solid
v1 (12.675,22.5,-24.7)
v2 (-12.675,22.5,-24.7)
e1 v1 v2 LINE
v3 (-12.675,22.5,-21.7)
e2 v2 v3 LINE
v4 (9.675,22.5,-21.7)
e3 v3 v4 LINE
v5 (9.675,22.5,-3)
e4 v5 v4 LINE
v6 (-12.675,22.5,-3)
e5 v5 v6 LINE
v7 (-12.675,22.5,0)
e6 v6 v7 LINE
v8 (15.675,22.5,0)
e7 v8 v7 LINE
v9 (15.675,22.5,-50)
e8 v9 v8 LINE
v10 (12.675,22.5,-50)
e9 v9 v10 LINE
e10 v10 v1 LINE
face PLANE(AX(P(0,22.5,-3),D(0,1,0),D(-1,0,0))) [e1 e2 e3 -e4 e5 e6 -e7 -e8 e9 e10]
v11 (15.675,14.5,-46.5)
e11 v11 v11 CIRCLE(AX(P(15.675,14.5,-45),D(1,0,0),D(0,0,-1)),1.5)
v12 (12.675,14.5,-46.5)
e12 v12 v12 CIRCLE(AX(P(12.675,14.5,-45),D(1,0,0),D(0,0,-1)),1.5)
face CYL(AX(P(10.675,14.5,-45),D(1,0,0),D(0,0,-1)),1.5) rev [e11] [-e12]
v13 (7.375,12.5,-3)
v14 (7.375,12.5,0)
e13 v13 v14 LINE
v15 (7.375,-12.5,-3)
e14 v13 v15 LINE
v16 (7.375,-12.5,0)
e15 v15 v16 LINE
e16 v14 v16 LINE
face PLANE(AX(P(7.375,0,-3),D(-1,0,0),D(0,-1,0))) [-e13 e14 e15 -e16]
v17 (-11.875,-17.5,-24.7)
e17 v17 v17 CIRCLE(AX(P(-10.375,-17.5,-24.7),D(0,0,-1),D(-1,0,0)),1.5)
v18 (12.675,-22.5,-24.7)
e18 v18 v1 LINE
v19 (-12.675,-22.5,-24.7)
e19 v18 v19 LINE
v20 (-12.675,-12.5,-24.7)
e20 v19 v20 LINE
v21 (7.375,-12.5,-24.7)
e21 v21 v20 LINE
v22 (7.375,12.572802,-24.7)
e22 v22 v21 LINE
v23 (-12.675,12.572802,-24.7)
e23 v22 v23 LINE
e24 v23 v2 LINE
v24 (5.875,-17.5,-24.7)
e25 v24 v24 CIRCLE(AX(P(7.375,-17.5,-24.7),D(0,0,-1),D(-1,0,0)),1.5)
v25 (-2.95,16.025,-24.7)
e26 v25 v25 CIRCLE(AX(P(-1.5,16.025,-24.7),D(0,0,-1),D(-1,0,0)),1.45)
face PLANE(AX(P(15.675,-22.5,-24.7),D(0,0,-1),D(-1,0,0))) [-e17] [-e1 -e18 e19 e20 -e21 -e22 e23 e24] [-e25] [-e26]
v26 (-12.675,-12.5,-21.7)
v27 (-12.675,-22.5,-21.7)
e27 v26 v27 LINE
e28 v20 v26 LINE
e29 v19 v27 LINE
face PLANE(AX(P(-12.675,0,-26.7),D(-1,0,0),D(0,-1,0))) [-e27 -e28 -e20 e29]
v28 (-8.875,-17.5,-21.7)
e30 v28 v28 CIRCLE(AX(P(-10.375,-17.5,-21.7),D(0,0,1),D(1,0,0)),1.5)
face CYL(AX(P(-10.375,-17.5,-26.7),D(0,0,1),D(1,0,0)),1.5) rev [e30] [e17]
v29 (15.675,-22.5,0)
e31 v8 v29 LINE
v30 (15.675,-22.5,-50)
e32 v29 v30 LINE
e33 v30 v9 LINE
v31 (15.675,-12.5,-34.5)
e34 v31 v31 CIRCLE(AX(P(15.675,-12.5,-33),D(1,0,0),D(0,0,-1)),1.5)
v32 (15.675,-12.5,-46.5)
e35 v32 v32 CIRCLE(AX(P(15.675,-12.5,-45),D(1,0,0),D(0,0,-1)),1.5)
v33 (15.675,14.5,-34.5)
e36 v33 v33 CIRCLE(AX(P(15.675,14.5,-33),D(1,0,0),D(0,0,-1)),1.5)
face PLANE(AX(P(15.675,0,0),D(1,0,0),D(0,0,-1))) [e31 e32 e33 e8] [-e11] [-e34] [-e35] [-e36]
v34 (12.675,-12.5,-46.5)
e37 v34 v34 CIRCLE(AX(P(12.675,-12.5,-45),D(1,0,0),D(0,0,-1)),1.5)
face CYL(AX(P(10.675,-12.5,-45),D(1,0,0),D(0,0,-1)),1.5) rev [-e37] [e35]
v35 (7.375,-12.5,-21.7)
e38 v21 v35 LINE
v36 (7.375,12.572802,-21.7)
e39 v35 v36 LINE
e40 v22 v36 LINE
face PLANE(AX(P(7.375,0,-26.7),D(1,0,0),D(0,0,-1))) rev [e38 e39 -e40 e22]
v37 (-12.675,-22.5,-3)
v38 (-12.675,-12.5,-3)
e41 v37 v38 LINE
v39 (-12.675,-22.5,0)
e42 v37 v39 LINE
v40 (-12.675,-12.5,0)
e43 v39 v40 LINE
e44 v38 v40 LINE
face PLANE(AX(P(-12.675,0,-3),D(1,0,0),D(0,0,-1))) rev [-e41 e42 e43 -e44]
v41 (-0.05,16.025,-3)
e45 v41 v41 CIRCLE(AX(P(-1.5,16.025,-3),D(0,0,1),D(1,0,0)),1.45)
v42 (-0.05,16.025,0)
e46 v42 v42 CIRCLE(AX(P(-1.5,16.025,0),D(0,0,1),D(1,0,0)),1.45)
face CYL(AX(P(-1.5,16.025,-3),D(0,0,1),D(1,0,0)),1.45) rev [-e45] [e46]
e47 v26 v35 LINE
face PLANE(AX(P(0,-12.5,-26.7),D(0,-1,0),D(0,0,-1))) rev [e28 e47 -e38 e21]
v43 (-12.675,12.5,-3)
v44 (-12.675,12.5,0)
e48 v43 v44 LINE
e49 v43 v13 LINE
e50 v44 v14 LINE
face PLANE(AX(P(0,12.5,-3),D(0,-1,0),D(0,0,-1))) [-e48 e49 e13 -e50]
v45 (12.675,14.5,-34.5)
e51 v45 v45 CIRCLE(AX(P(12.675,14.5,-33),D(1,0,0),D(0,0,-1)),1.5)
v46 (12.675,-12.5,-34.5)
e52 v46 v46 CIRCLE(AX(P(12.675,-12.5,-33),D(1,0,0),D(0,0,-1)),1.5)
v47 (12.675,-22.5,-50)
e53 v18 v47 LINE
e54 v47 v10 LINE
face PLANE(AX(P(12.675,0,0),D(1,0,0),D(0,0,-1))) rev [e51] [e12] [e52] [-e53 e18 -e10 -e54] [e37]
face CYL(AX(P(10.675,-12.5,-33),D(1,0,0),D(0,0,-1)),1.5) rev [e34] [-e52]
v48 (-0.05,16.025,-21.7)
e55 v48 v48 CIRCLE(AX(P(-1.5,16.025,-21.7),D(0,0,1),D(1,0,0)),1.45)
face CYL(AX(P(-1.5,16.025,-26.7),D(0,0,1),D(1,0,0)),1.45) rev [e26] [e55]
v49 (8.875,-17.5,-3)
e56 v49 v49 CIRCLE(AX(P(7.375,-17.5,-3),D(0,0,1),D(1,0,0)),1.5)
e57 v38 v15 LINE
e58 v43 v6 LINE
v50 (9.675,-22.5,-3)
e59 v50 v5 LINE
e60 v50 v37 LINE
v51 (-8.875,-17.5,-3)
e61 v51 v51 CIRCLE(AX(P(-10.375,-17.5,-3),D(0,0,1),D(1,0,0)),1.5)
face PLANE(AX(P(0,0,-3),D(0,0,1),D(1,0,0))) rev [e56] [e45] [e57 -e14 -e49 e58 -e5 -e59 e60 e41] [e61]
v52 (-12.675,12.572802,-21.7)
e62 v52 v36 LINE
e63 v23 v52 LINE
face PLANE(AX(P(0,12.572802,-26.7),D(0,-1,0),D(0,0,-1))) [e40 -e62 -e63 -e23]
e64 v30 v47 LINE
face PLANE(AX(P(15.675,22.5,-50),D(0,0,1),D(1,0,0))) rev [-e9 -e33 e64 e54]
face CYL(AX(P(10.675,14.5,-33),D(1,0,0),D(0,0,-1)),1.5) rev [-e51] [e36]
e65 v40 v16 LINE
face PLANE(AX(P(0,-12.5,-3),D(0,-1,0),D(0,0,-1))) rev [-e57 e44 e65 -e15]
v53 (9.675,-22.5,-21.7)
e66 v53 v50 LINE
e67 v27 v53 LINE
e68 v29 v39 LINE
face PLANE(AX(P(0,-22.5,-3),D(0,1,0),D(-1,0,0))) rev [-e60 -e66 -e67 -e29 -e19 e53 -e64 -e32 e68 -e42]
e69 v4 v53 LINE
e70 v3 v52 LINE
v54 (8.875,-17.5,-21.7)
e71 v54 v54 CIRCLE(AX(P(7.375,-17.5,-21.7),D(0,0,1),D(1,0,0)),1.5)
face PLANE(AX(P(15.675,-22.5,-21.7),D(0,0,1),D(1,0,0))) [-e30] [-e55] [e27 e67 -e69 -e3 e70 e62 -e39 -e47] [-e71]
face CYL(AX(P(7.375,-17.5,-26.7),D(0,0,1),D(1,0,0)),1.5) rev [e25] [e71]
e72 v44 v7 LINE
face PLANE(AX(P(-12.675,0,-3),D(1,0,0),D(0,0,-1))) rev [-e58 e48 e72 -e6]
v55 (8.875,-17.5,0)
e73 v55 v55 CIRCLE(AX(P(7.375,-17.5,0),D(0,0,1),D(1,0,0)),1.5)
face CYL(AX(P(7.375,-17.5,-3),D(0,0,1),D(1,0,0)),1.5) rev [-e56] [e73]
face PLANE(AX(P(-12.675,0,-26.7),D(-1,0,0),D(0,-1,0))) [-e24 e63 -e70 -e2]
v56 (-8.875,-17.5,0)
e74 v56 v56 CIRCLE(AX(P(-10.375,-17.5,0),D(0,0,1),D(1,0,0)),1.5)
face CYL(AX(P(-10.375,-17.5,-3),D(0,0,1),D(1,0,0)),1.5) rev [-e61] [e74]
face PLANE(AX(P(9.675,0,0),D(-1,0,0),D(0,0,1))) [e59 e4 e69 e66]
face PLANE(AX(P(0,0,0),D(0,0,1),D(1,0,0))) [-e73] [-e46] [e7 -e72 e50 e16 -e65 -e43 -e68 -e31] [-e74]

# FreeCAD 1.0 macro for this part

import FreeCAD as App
import Part
import Sketcher

doc = App.newDocument("Part")
body = doc.addObject("PartDesign::Body", "Body")

# Sketch on XY plane
sketch1 = body.newObject("Sketcher::SketchObject", "Sketch")
sketch1.AttachmentSupport = (doc.getObject("XY_Plane"), [""])
sketch1.MapMode = "FlatFace"
sketch1.addGeometry([
    Part.LineSegment(App.Vector(7.4, 12.5, 0), App.Vector(7.4, -12.5, 0)),  # 0
    Part.LineSegment(App.Vector(7.4, -12.5, 0), App.Vector(-12.7, -12.5, 0)),  # 1
    Part.LineSegment(App.Vector(-12.7, -12.5, 0), App.Vector(-12.7, -22.5, 0)),  # 2
    Part.LineSegment(App.Vector(-12.7, -22.5, 0), App.Vector(12.7, -22.5, 0)),  # 3
    Part.LineSegment(App.Vector(12.7, -22.5, 0), App.Vector(12.7, 22.5, 0)),  # 4
    Part.LineSegment(App.Vector(12.7, 22.5, 0), App.Vector(-12.7, 22.5, 0)),  # 5
    Part.LineSegment(App.Vector(-12.7, 22.5, 0), App.Vector(-12.7, 12.5, 0)),  # 6
    Part.LineSegment(App.Vector(-12.7, 12.5, 0), App.Vector(7.4, 12.5, 0)),  # 7
    Part.Circle(App.Vector(7.4, -17.5, 0), App.Vector(0, 0, 1), 1.5),  # 8
    Part.Circle(App.Vector(-10.4, -17.5, 0), App.Vector(0, 0, 1), 1.5),  # 9
    Part.Circle(App.Vector(-1.5, 16, 0), App.Vector(0, 0, 1), 1.4),  # 10
], False)
sketch1.addConstraint([
    Sketcher.Constraint("Coincident", 0, 2, 1, 1),
    Sketcher.Constraint("Coincident", 1, 2, 2, 1),
    Sketcher.Constraint("Coincident", 2, 2, 3, 1),
    Sketcher.Constraint("Coincident", 3, 2, 4, 1),
    Sketcher.Constraint("Coincident", 4, 2, 5, 1),
    Sketcher.Constraint("Coincident", 5, 2, 6, 1),
    Sketcher.Constraint("Coincident", 6, 2, 7, 1),
    Sketcher.Constraint("Coincident", 7, 2, 0, 1),
    Sketcher.Constraint("Vertical", 0),
    Sketcher.Constraint("Horizontal", 1),
    Sketcher.Constraint("Vertical", 2),
    Sketcher.Constraint("Horizontal", 3),
    Sketcher.Constraint("Vertical", 4),
    Sketcher.Constraint("Horizontal", 5),
    Sketcher.Constraint("Vertical", 6),
    Sketcher.Constraint("Horizontal", 7),
    Sketcher.Constraint("Equal", 8, 9),
    Sketcher.Constraint("Symmetric", 2, 2, 4, 2, -1, 1),
    Sketcher.Constraint("Symmetric", 1, 2, 6, 2, -1),
    Sketcher.Constraint("Horizontal", 8, 3, 9, 3),
    Sketcher.Constraint("Vertical", 8, 3, 0, 2),
    Sketcher.Constraint("Diameter", 8, 3.0),
    Sketcher.Constraint("Diameter", 10, 2.9),
    Sketcher.Constraint("DistanceY", 0, 2, 0, 1, 25.0),
    Sketcher.Constraint("DistanceY", 2, 2, 2, 1, 10.0),
    Sketcher.Constraint("DistanceY", 8, 3, 0, 2, 5.0),
    Sketcher.Constraint("DistanceX", 1, 2, 1, 1, 20.05),
    Sketcher.Constraint("DistanceX", 3, 1, 3, 2, 25.35),
    Sketcher.Constraint("DistanceX", 10, 3, -1, 1, 1.5),
    Sketcher.Constraint("DistanceX", 1, 2, 9, 3, 2.3),
    Sketcher.Constraint("DistanceY", -1, 1, 10, 3, 16.025),
])
pad1 = body.newObject("PartDesign::Pad", "Pad")
pad1.Profile = sketch1
pad1.Length = 3
pad1.Reversed = True

# Sketch on YZ plane
sketch2 = body.newObject("Sketcher::SketchObject", "Sketch001")
sketch2.AttachmentSupport = (doc.getObject("YZ_Plane"), [""])
sketch2.MapMode = "FlatFace"
sketch2.AttachmentOffset = App.Placement(App.Vector(0, 0, 12.675), App.Rotation())
sketch2.addGeometry([
    Part.LineSegment(App.Vector(22, 0, 0), App.Vector(-22, 0, 0)),
    Part.LineSegment(App.Vector(-22, 0, 0), App.Vector(-22, -50, 0)),
    Part.LineSegment(App.Vector(-22, -50, 0), App.Vector(22, -50, 0)),
    Part.LineSegment(App.Vector(22, -50, 0), App.Vector(22, 0, 0)),
], False)
sketch2.addConstraint([
    Sketcher.Constraint("Coincident", 0, 2, 1, 1),
    Sketcher.Constraint("Coincident", 1, 2, 2, 1),
    Sketcher.Constraint("Coincident", 2, 2, 3, 1),
    Sketcher.Constraint("Coincident", 3, 2, 0, 1),
    Sketcher.Constraint("Horizontal", 0),
    Sketcher.Constraint("Vertical", 1),
    Sketcher.Constraint("Horizontal", 2),
    Sketcher.Constraint("Vertical", 3),
    Sketcher.Constraint("Symmetric", 0, 2, 3, 2, -1, 1),
    Sketcher.Constraint("DistanceX", 0, 2, 0, 1, 45.0),
    Sketcher.Constraint("DistanceY", 1, 2, 1, 1, 50.0),
])
pad2 = body.newObject("PartDesign::Pad", "Pad001")
pad2.Profile = sketch2
pad2.Length = 3

# Sketch on XZ plane
sketch3 = body.newObject("Sketcher::SketchObject", "Sketch002")
sketch3.AttachmentSupport = (doc.getObject("XZ_Plane"), [""])
sketch3.MapMode = "FlatFace"
sketch3.AttachmentOffset = App.Placement(App.Vector(0, 0, -22.5), App.Rotation())
sketch3.addGeometry([
    Part.LineSegment(App.Vector(-22.7, -24.7, 0), App.Vector(-22.7, -21.7, 0)),
    Part.LineSegment(App.Vector(-22.7, -21.7, 0), App.Vector(15.7, -21.7, 0)),
    Part.LineSegment(App.Vector(15.7, -21.7, 0), App.Vector(15.7, -24.7, 0)),
    Part.LineSegment(App.Vector(15.7, -24.7, 0), App.Vector(-22.7, -24.7, 0)),
], False)
sketch3.addConstraint([
    Sketcher.Constraint("Coincident", 0, 2, 1, 1),
    Sketcher.Constraint("Coincident", 1, 2, 2, 1),
    Sketcher.Constraint("Coincident", 2, 2, 3, 1),
    Sketcher.Constraint("Coincident", 3, 2, 0, 1),
    Sketcher.Constraint("Vertical", 0),
    Sketcher.Constraint("Horizontal", 1),
    Sketcher.Constraint("Vertical", 2),
    Sketcher.Constraint("Horizontal", 3),
    Sketcher.Constraint("DistanceY", 0, 1, 0, 2, 3.0),
    Sketcher.Constraint("DistanceX", 1, 1, 1, 2, 38.35),
    Sketcher.Constraint("DistanceY", 0, 2, -1, 1, 21.7),
    Sketcher.Constraint("DistanceX", 0, 2, -1, 1, 22.675),
])
pad3 = body.newObject("PartDesign::Pad", "Pad002")
pad3.Profile = sketch3
pad3.Length = 45

# Sketch on XY plane
sketch4 = body.newObject("Sketcher::SketchObject", "Sketch003")
sketch4.AttachmentSupport = (doc.getObject("XY_Plane"), [""])
sketch4.MapMode = "FlatFace"
sketch4.AttachmentOffset = App.Placement(App.Vector(0, 0, -21.7), App.Rotation())
sketch4.addGeometry([
    Part.LineSegment(App.Vector(-13, 13, 0), App.Vector(-13, 22, 0)),  # 0
    Part.LineSegment(App.Vector(-13, 22, 0), App.Vector(-23, 22, 0)),  # 1
    Part.LineSegment(App.Vector(-23, 22, 0), App.Vector(-23, -22, 0)),  # 2
    Part.LineSegment(App.Vector(-23, -22, 0), App.Vector(-13, -22, 0)),  # 3
    Part.LineSegment(App.Vector(-13, -22, 0), App.Vector(-13, -12, 0)),  # 4
    Part.LineSegment(App.Vector(-13, -12, 0), App.Vector(7, -12, 0)),  # 5
    Part.LineSegment(App.Vector(7, -12, 0), App.Vector(7, 13, 0)),  # 6
    Part.LineSegment(App.Vector(7, 13, 0), App.Vector(-13, 13, 0)),  # 7
], False)
sketch4.addConstraint([
    Sketcher.Constraint("Coincident", 0, 2, 1, 1),
    Sketcher.Constraint("Coincident", 1, 2, 2, 1),
    Sketcher.Constraint("Coincident", 2, 2, 3, 1),
    Sketcher.Constraint("Coincident", 3, 2, 4, 1),
    Sketcher.Constraint("Coincident", 4, 2, 5, 1),
    Sketcher.Constraint("Coincident", 5, 2, 6, 1),
    Sketcher.Constraint("Coincident", 6, 2, 7, 1),
    Sketcher.Constraint("Coincident", 7, 2, 0, 1),
    Sketcher.Constraint("Vertical", 0),
    Sketcher.Constraint("Horizontal", 1),
    Sketcher.Constraint("Vertical", 2),
    Sketcher.Constraint("Horizontal", 3),
    Sketcher.Constraint("Vertical", 4),
    Sketcher.Constraint("Horizontal", 5),
    Sketcher.Constraint("Vertical", 6),
    Sketcher.Constraint("Horizontal", 7),
    Sketcher.Constraint("Symmetric", 0, 2, 3, 2, -1),
    Sketcher.Constraint("Equal", 3, 4),
    Sketcher.Constraint("DistanceX", 1, 2, 1, 1, 10.0),
    Sketcher.Constraint("DistanceY", 2, 2, 2, 1, 45.0),
    Sketcher.Constraint("DistanceX", 5, 1, 5, 2, 20.05),
    Sketcher.Constraint("DistanceX", 0, 2, -1, 1, 12.675),
    Sketcher.Constraint("DistanceY", 0, 1, 0, 2, 9.927198),
])
pocket1 = body.newObject("PartDesign::Pocket", "Pocket")
pocket1.Profile = sketch4
pocket1.Length = 5

# Sketch on XY plane
sketch5 = body.newObject("Sketcher::SketchObject", "Sketch004")
sketch5.AttachmentSupport = (doc.getObject("XY_Plane"), [""])
sketch5.MapMode = "FlatFace"
sketch5.AttachmentOffset = App.Placement(App.Vector(0, 0, -21.7), App.Rotation())
sketch5.addGeometry([
    Part.Circle(App.Vector(-10.4, -17.5, 0), App.Vector(0, 0, 1), 1.5),
    Part.Circle(App.Vector(7.4, -17.5, 0), App.Vector(0, 0, 1), 1.5),
    Part.Circle(App.Vector(-1.5, 16, 0), App.Vector(0, 0, 1), 1.4),
], False)
sketch5.addConstraint([
    Sketcher.Constraint("Equal", 0, 1),
    Sketcher.Constraint("Horizontal", 0, 3, 1, 3),
    Sketcher.Constraint("Diameter", 0, 3.0),
    Sketcher.Constraint("Diameter", 2, 2.9),
    Sketcher.Constraint("DistanceY", 0, 3, -1, 1, 17.5),
    Sketcher.Constraint("DistanceX", 2, 3, -1, 1, 1.5),
    Sketcher.Constraint("DistanceX", 0, 3, 1, 3, 17.75),
    Sketcher.Constraint("DistanceX", 0, 3, -1, 1, 10.375),
    Sketcher.Constraint("DistanceY", -1, 1, 2, 3, 16.025),
])
pocket2 = body.newObject("PartDesign::Pocket", "Pocket001")
pocket2.Profile = sketch5
pocket2.Length = 5

# Sketch on YZ plane
sketch6 = body.newObject("Sketcher::SketchObject", "Sketch005")
sketch6.AttachmentSupport = (doc.getObject("YZ_Plane"), [""])
sketch6.MapMode = "FlatFace"
sketch6.AttachmentOffset = App.Placement(App.Vector(0, 0, 15.675), App.Rotation())
sketch6.addGeometry([
    Part.Circle(App.Vector(14.5, -33, 0), App.Vector(0, 0, 1), 1.5),
    Part.Circle(App.Vector(14.5, -45, 0), App.Vector(0, 0, 1), 1.5),
    Part.Circle(App.Vector(-12.5, -33, 0), App.Vector(0, 0, 1), 1.5),
    Part.Circle(App.Vector(-12.5, -45, 0), App.Vector(0, 0, 1), 1.5),
], False)
sketch6.addConstraint([
    Sketcher.Constraint("Equal", 0, 1),
    Sketcher.Constraint("Equal", 1, 2),
    Sketcher.Constraint("Equal", 2, 3),
    Sketcher.Constraint("Horizontal", 0, 3, 2, 3),
    Sketcher.Constraint("Horizontal", 1, 3, 3, 3),
    Sketcher.Constraint("Vertical", 0, 3, 1, 3),
    Sketcher.Constraint("Vertical", 2, 3, 3, 3),
    Sketcher.Constraint("Diameter", 0, 3.0),
    Sketcher.Constraint("DistanceY", 0, 3, -1, 1, 33.0),
    Sketcher.Constraint("DistanceY", 1, 3, -1, 1, 45.0),
    Sketcher.Constraint("DistanceX", 2, 3, 0, 3, 27.0),
    Sketcher.Constraint("DistanceX", -1, 1, 0, 3, 14.5),
])
pocket3 = body.newObject("PartDesign::Pocket", "Pocket002")
pocket3.Profile = sketch6
pocket3.Length = 5

# Sketch on YZ plane
sketch7 = body.newObject("Sketcher::SketchObject", "Sketch006")
sketch7.AttachmentSupport = (doc.getObject("YZ_Plane"), [""])
sketch7.MapMode = "FlatFace"
sketch7.AttachmentOffset = App.Placement(App.Vector(0, 0, 12.675), App.Rotation())
sketch7.addGeometry([
    Part.LineSegment(App.Vector(22, -22, 0), App.Vector(-22, -22, 0)),
    Part.LineSegment(App.Vector(-22, -22, 0), App.Vector(-22, -3, 0)),
    Part.LineSegment(App.Vector(-22, -3, 0), App.Vector(22, -3, 0)),
    Part.LineSegment(App.Vector(22, -3, 0), App.Vector(22, -22, 0)),
], False)
sketch7.addConstraint([
    Sketcher.Constraint("Coincident", 0, 2, 1, 1),
    Sketcher.Constraint("Coincident", 1, 2, 2, 1),
    Sketcher.Constraint("Coincident", 2, 2, 3, 1),
    Sketcher.Constraint("Coincident", 3, 2, 0, 1),
    Sketcher.Constraint("Horizontal", 0),
    Sketcher.Constraint("Vertical", 1),
    Sketcher.Constraint("Horizontal", 2),
    Sketcher.Constraint("Vertical", 3),
    Sketcher.Constraint("DistanceX", 0, 2, 0, 1, 45.0),
    Sketcher.Constraint("DistanceY", 1, 1, 1, 2, 18.7),
    Sketcher.Constraint("DistanceY", 1, 2, -1, 1, 3.0),
    Sketcher.Constraint("DistanceX", 0, 2, -1, 1, 22.5),
])
pad4 = body.newObject("PartDesign::Pad", "Pad003")
pad4.Profile = sketch7
pad4.Length = 3
pad4.Reversed = True

doc.recompute()
